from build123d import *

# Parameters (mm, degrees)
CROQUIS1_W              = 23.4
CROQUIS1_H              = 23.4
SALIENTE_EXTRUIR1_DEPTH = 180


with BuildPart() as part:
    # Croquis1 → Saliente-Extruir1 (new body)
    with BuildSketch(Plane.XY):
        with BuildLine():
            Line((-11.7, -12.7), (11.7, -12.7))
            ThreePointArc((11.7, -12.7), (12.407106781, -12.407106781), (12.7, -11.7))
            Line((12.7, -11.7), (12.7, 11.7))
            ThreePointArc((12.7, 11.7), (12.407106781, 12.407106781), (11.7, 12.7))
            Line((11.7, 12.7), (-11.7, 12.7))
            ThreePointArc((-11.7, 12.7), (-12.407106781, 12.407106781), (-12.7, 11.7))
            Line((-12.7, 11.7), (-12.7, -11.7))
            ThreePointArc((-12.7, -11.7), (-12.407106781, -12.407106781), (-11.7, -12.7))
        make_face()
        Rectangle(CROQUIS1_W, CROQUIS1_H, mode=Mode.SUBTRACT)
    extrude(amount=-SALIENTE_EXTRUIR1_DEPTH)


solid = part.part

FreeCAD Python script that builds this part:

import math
import FreeCAD as App
import Part
import Sketcher

V = App.Vector
Q = App.Units.Quantity


def add_polygon(sketch, points):
    """Adds a closed chain of lines whose ends are joined by coincident constraints."""
    first, n = sketch.GeometryCount, len(points)
    for a, b in zip(points, points[1:] + points[:1]):
        sketch.addGeometry(Part.LineSegment(App.Vector(*a, 0), App.Vector(*b, 0)), False)
    for i in range(n):
        sketch.addConstraint(Sketcher.Constraint("Coincident", first + i, 2, first + (i + 1) % n, 1))

doc = App.newDocument("Part")
body = doc.addObject("PartDesign::Body", "Body")

sketch1 = body.newObject("Sketcher::SketchObject", "Sketch")
sketch1.AttachmentSupport = (doc.getObject("XY_Plane"), [""])
sketch1.MapMode = "FlatFace"
sketch1.addGeometry(Part.LineSegment(V(-11.7, -12.7, 0), V(11.7, -12.7, 0)), False)
sketch1.addGeometry(Part.ArcOfCircle(Part.Circle(V(11.7, -11.7, 0), V(0, 0, 1), 1), math.radians(-90), math.radians(0)), False)
sketch1.addGeometry(Part.LineSegment(V(12.7, -11.7, 0), V(12.7, 11.7, 0)), False)
sketch1.addGeometry(Part.ArcOfCircle(Part.Circle(V(11.7, 11.7, 0), V(0, 0, 1), 1), math.radians(0), math.radians(90)), False)
sketch1.addGeometry(Part.LineSegment(V(11.7, 12.7, 0), V(-11.7, 12.7, 0)), False)
sketch1.addGeometry(Part.ArcOfCircle(Part.Circle(V(-11.7, 11.7, 0), V(0, 0, 1), 1), math.radians(90), math.radians(180)), False)
sketch1.addGeometry(Part.LineSegment(V(-12.7, 11.7, 0), V(-12.7, -11.7, 0)), False)
sketch1.addGeometry(Part.ArcOfCircle(Part.Circle(V(-11.7, -11.7, 0), V(0, 0, 1), 1), math.radians(-180), math.radians(-90)), False)
add_polygon(sketch1, [(11.7, -11.7), (-11.7, -11.7), (-11.7, 11.7), (11.7, 11.7)])
sketch1.addConstraint([
    Sketcher.Constraint("Tangent", 0, 2, 1, 1),
    Sketcher.Constraint("Tangent", 1, 2, 2, 1),
    Sketcher.Constraint("Tangent", 2, 2, 3, 1),
    Sketcher.Constraint("Tangent", 3, 2, 4, 1),
    Sketcher.Constraint("Tangent", 4, 2, 5, 1),
    Sketcher.Constraint("Tangent", 5, 2, 6, 1),
    Sketcher.Constraint("Tangent", 6, 2, 7, 1),
    Sketcher.Constraint("Tangent", 7, 2, 0, 1),
    Sketcher.Constraint("Horizontal", 0),
    Sketcher.Constraint("Vertical", 2),
    Sketcher.Constraint("Horizontal", 4),
    Sketcher.Constraint("Vertical", 6),
    Sketcher.Constraint("Horizontal", 8),
    Sketcher.Constraint("Vertical", 9),
    Sketcher.Constraint("Horizontal", 10),
    Sketcher.Constraint("Vertical", 11),
    Sketcher.Constraint("Coincident", 8, 2, 7, 3),
    Sketcher.Constraint("Coincident", 9, 2, 5, 3),
    Sketcher.Constraint("Coincident", 10, 2, 3, 3),
    Sketcher.Constraint("Equal", 1, 3),
    Sketcher.Constraint("Symmetric", 1, 3, 5, 3, -1, 1),
    Sketcher.Constraint("Equal", 10, 2),
    Sketcher.Constraint("Radius", 1, Q("1 mm")),
    Sketcher.Constraint("DistanceX", 0, 1, 0, 2, Q("23.4 mm")),
])
pad1 = body.newObject("PartDesign::Pad", "Pad")
pad1.Profile = sketch1
pad1.Length = 180
pad1.Reversed = True

doc.recompute()
